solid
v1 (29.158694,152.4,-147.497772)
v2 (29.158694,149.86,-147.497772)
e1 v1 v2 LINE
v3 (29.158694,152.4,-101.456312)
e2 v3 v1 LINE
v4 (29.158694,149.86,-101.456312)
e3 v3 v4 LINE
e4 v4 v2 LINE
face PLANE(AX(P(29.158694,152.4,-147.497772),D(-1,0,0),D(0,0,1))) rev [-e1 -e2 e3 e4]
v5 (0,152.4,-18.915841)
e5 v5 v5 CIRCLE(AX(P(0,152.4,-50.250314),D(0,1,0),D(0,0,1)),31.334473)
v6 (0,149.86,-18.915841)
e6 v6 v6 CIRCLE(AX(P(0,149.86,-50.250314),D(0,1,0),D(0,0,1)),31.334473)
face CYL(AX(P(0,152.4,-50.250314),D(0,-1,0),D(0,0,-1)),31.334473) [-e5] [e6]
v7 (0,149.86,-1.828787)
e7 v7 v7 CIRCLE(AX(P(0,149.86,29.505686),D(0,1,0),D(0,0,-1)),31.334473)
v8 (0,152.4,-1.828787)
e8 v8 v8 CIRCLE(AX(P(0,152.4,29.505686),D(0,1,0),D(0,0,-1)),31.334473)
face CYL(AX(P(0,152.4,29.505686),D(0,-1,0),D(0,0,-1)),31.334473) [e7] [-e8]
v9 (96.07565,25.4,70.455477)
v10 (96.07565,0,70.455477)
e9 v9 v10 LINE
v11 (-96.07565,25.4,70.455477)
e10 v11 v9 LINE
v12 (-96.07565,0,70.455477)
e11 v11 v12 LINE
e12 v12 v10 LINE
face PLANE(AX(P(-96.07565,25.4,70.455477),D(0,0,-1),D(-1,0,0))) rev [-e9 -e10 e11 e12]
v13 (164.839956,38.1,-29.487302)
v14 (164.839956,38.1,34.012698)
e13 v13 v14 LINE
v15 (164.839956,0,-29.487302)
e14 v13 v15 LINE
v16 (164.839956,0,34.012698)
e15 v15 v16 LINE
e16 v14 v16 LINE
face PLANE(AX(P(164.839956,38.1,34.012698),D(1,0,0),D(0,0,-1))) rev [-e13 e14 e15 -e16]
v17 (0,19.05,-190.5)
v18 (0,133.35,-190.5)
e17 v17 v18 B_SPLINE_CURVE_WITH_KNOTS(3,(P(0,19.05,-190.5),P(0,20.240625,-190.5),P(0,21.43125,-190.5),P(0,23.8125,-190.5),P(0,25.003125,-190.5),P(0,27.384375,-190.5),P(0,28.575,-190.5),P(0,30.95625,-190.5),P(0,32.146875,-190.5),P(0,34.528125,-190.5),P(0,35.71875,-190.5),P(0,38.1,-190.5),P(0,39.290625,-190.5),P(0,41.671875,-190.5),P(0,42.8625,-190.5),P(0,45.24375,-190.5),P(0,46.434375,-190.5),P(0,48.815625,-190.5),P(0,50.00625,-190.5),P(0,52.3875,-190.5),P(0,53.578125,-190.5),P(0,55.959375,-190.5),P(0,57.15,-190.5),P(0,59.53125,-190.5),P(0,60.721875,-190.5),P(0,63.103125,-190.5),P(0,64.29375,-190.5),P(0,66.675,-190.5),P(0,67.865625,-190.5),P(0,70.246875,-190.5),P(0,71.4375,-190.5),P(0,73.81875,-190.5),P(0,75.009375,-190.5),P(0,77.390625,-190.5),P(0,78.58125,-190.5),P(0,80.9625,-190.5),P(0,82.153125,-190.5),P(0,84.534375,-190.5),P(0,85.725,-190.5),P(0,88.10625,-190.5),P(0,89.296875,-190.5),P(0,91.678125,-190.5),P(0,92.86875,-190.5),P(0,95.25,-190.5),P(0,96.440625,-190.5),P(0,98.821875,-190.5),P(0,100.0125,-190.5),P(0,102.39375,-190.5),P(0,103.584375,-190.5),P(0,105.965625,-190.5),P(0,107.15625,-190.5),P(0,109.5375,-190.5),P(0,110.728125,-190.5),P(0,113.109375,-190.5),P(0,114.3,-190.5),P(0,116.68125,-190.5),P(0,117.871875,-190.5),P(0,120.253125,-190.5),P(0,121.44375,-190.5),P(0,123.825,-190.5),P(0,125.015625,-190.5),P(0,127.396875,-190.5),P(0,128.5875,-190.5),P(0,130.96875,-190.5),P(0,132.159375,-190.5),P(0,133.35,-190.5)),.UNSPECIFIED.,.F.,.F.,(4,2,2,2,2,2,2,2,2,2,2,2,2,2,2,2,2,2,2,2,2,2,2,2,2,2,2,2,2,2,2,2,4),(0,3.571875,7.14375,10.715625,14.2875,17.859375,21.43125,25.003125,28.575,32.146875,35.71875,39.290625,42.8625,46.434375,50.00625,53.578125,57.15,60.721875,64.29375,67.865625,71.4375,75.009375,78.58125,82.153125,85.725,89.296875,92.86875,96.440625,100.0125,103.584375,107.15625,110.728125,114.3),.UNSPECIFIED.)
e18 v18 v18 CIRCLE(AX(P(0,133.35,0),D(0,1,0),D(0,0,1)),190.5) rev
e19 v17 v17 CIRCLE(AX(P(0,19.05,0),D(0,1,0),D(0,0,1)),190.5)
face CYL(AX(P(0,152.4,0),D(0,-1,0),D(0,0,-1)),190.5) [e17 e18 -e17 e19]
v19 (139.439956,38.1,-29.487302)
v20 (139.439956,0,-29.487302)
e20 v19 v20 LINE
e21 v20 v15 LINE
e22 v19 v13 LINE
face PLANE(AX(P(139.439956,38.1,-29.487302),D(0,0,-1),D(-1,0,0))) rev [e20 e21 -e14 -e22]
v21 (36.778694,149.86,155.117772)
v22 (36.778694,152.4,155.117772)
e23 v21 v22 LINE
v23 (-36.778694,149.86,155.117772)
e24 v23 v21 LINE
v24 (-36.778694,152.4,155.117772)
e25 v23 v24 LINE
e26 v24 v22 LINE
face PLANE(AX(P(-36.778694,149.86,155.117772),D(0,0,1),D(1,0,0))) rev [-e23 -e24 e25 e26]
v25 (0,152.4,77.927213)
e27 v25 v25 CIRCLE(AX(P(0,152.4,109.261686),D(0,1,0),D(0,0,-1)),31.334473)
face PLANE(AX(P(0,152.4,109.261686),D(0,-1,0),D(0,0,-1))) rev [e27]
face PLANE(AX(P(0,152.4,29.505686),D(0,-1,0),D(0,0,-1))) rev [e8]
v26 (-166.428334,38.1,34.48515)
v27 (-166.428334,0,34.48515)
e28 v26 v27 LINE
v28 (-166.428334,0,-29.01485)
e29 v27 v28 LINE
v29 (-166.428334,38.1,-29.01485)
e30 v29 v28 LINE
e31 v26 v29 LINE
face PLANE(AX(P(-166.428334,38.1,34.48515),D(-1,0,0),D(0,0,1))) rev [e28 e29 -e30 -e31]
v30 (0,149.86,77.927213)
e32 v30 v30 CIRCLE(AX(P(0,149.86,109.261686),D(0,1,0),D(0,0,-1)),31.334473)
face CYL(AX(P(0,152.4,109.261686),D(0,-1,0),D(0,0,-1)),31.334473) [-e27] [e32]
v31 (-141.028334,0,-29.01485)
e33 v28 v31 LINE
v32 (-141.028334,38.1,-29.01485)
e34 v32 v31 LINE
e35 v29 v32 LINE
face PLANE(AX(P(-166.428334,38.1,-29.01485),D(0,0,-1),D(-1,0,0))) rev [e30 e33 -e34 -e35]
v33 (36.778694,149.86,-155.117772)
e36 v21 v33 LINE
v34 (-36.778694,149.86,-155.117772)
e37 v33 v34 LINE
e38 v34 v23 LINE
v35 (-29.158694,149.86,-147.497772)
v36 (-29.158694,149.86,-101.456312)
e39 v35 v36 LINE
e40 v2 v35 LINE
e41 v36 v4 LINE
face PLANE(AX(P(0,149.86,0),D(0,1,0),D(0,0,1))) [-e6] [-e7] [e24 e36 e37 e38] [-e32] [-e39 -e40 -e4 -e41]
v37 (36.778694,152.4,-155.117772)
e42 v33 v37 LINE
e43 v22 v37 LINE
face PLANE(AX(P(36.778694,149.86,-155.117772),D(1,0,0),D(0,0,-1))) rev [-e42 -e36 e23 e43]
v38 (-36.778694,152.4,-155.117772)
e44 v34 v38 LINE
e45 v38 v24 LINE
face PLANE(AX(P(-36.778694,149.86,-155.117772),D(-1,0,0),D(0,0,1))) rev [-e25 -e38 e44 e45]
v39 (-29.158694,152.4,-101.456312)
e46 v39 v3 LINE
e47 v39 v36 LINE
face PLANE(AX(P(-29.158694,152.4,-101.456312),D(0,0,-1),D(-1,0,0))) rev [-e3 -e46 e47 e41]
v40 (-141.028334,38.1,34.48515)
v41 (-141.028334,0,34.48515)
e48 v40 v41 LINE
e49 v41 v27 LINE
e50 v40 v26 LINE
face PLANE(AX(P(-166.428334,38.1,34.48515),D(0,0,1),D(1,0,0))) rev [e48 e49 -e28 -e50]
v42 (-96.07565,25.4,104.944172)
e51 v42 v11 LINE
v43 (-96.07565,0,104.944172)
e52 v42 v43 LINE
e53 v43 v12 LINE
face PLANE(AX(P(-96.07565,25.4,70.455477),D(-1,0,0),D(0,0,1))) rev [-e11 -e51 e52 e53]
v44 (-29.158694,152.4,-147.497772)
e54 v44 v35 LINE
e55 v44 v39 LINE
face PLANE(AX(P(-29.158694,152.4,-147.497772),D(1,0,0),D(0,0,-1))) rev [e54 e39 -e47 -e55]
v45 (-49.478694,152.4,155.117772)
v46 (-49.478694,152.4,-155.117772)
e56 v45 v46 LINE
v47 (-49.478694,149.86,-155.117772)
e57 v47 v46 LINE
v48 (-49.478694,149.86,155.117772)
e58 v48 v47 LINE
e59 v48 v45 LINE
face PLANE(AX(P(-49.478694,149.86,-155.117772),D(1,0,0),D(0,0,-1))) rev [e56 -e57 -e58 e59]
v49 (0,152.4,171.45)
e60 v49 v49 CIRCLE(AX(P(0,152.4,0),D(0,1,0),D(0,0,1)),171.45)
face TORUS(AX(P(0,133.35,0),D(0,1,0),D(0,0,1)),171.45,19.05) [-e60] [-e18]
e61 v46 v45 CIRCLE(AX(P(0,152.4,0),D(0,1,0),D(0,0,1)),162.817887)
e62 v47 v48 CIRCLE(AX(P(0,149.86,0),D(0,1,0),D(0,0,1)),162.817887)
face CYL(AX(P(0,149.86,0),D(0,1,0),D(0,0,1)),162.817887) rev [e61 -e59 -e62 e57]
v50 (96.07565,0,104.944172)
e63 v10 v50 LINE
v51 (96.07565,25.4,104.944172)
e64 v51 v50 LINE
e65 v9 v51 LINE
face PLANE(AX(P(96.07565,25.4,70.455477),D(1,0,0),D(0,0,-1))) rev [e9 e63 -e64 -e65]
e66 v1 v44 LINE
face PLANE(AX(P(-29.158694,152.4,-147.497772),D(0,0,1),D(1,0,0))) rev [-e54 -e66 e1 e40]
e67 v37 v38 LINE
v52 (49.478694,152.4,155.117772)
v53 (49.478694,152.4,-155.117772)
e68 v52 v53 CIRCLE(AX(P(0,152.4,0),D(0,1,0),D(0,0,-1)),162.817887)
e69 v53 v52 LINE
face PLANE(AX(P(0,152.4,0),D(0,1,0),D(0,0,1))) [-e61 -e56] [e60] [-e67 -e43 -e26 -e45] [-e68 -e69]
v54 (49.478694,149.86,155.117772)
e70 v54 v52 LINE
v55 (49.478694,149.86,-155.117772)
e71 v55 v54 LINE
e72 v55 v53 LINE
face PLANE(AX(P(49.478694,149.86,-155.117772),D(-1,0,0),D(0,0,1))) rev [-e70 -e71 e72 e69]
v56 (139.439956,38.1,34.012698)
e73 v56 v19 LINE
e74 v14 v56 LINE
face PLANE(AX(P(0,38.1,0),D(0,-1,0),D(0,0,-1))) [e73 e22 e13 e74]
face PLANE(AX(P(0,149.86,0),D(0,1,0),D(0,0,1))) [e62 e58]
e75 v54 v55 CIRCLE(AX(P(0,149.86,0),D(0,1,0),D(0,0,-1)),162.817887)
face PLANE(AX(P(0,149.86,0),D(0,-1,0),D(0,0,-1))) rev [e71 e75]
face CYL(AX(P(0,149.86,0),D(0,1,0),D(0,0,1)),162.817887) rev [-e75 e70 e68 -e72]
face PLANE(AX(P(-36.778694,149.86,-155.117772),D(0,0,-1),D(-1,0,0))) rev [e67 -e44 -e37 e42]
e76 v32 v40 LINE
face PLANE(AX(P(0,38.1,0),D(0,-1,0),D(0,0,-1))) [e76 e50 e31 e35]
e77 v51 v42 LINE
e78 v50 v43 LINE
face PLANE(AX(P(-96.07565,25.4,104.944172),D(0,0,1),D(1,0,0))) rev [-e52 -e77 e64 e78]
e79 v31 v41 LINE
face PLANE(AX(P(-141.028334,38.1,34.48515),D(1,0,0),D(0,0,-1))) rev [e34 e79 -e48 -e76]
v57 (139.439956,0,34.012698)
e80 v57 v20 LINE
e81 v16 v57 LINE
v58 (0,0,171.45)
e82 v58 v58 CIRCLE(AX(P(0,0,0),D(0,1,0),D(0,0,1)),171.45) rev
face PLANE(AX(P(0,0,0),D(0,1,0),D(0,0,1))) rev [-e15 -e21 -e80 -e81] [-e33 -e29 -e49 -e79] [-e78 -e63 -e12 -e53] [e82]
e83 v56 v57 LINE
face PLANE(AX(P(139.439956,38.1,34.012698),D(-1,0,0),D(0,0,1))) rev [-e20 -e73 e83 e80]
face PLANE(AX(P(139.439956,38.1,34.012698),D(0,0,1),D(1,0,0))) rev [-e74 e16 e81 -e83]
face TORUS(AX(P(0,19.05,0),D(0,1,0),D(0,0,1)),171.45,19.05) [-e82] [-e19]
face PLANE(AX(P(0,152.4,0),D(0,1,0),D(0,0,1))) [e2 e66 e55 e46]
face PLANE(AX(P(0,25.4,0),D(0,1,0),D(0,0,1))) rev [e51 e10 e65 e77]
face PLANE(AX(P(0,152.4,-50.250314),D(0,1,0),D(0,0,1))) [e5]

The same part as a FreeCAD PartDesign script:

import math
import FreeCAD as App
import Part
import Sketcher
Q = App.Units.Quantity


def edges_at(feature, points):
    """Names of the edges that pass closest to the given points."""
    edges = feature.Shape.Edges
    near = lambda p: min(range(len(edges)), key=lambda i: edges[i].distToShape(Part.Vertex(*p))[0])
    return sorted({f"Edge{near(p) + 1}" for p in points})

doc = App.newDocument("Part")
body = doc.addObject("PartDesign::Body", "Body")

# Sketch on XZ plane
sketch1 = body.newObject("Sketcher::SketchObject", "Sketch")
sketch1.AttachmentSupport = (doc.getObject("XZ_Plane"), [""])
sketch1.MapMode = "FlatFace"
sketch1.addGeometry(Part.Circle(App.Vector(0, 0, 0), App.Vector(0, 0, 1), 190), False)
sketch1.addConstraint(Sketcher.Constraint("Coincident", 0, 3, -1, 1))
sketch1.addConstraint(Sketcher.Constraint("Diameter", 0, Q("15 in")))
pad1 = body.newObject("PartDesign::Pad", "Pad")
pad1.Profile = sketch1
pad1.Length = Q("6 in")
pad1.Reversed = True

# Sketch on XZ plane
sketch2 = body.newObject("Sketcher::SketchObject", "Sketch001")
sketch2.AttachmentSupport = (doc.getObject("XZ_Plane"), [""])
sketch2.MapMode = "FlatFace"
sketch2.AttachmentOffset = App.Placement(App.Vector(0, 0, -6 * 25.4), App.Rotation())
sketch2.addGeometry(Part.LineSegment(App.Vector(-49, 155, 0), App.Vector(-49, -155, 0)), False)
sketch2.addGeometry(Part.ArcOfCircle(Part.Circle(App.Vector(0, 0, 0), App.Vector(0, 0, 1), 163), math.radians(108), math.radians(252)), False)
sketch2.addGeometry(Part.LineSegment(App.Vector(49, -155, 0), App.Vector(49, 155, 0)), False)
sketch2.addGeometry(Part.ArcOfCircle(Part.Circle(App.Vector(0, 0, 0), App.Vector(0, 0, 1), 163), math.radians(-72), math.radians(72)), False)
sketch2.addGeometry(Part.LineSegment(App.Vector(-37, -155, 0), App.Vector(-37, 155, 0)), False)
sketch2.addGeometry(Part.LineSegment(App.Vector(-37, 155, 0), App.Vector(37, 155, 0)), False)
sketch2.addGeometry(Part.LineSegment(App.Vector(37, 155, 0), App.Vector(37, -155, 0)), False)
sketch2.addGeometry(Part.LineSegment(App.Vector(37, -155, 0), App.Vector(-37, -155, 0)), False)
sketch2.addConstraint(Sketcher.Constraint("Coincident", 0, 1, 1, 1))
sketch2.addConstraint(Sketcher.Constraint("Coincident", 1, 2, 0, 2))
sketch2.addConstraint(Sketcher.Constraint("Coincident", 2, 1, 3, 1))
sketch2.addConstraint(Sketcher.Constraint("Coincident", 3, 2, 2, 2))
sketch2.addConstraint(Sketcher.Constraint("Coincident", 4, 2, 5, 1))
sketch2.addConstraint(Sketcher.Constraint("Coincident", 5, 2, 6, 1))
sketch2.addConstraint(Sketcher.Constraint("Coincident", 6, 2, 7, 1))
sketch2.addConstraint(Sketcher.Constraint("Coincident", 7, 2, 4, 1))
sketch2.addConstraint(Sketcher.Constraint("Vertical", 0))
sketch2.addConstraint(Sketcher.Constraint("Vertical", 2))
sketch2.addConstraint(Sketcher.Constraint("Vertical", 4))
sketch2.addConstraint(Sketcher.Constraint("Horizontal", 5))
sketch2.addConstraint(Sketcher.Constraint("Vertical", 6))
sketch2.addConstraint(Sketcher.Constraint("Horizontal", 7))
sketch2.addConstraint(Sketcher.Constraint("Coincident", 1, 3, -1, 1))
sketch2.addConstraint(Sketcher.Constraint("Coincident", 3, 3, -1, 1))
sketch2.addConstraint(Sketcher.Constraint("Equal", 1, 3))
sketch2.addConstraint(Sketcher.Constraint("Symmetric", 4, 2, 6, 2, -1, 1))
sketch2.addConstraint(Sketcher.Constraint("Horizontal", 1, 2, 2, 1))
sketch2.addConstraint(Sketcher.Constraint("Horizontal", 3, 2, 4, 2))
sketch2.addConstraint(Sketcher.Constraint("DistanceX", 0, 1, 4, 2, Q("0.5 in")))
sketch2.addConstraint(Sketcher.Constraint("Radius", 1, Q("162.817887 mm")))
sketch2.addConstraint(Sketcher.Constraint("DistanceX", 5, 1, 5, 2, Q("73.557388 mm")))
pocket1 = body.newObject("PartDesign::Pocket", "Pocket")
pocket1.Profile = sketch2
pocket1.Length = Q("0.1 in")
pocket1.Reversed = True

# Sketch on XZ plane
sketch3 = body.newObject("Sketcher::SketchObject", "Sketch002")
sketch3.AttachmentSupport = (doc.getObject("XZ_Plane"), [""])
sketch3.MapMode = "FlatFace"
sketch3.AttachmentOffset = App.Placement(App.Vector(0, 0, -5.9 * 25.4), App.Rotation())
sketch3.addGeometry(Part.Circle(App.Vector(0, -50, 0), App.Vector(0, 0, 1), 31), False)
sketch3.addGeometry(Part.Circle(App.Vector(0, 30, 0), App.Vector(0, 0, 1), 31), False)
sketch3.addGeometry(Part.Circle(App.Vector(0, 109, 0), App.Vector(0, 0, 1), 31), False)
sketch3.addGeometry(Part.LineSegment(App.Vector(-29, -147, 0), App.Vector(-29, -101, 0)), False)
sketch3.addGeometry(Part.LineSegment(App.Vector(-29, -101, 0), App.Vector(29, -101, 0)), False)
sketch3.addGeometry(Part.LineSegment(App.Vector(29, -101, 0), App.Vector(29, -147, 0)), False)
sketch3.addGeometry(Part.LineSegment(App.Vector(29, -147, 0), App.Vector(-29, -147, 0)), False)
sketch3.addConstraint(Sketcher.Constraint("Coincident", 3, 2, 4, 1))
sketch3.addConstraint(Sketcher.Constraint("Coincident", 4, 2, 5, 1))
sketch3.addConstraint(Sketcher.Constraint("Coincident", 5, 2, 6, 1))
sketch3.addConstraint(Sketcher.Constraint("Coincident", 6, 2, 3, 1))
sketch3.addConstraint(Sketcher.Constraint("Vertical", 3))
sketch3.addConstraint(Sketcher.Constraint("Horizontal", 4))
sketch3.addConstraint(Sketcher.Constraint("Vertical", 5))
sketch3.addConstraint(Sketcher.Constraint("Horizontal", 6))
sketch3.addConstraint(Sketcher.Constraint("Equal", 0, 1))
sketch3.addConstraint(Sketcher.Constraint("Equal", 1, 2))
sketch3.addConstraint(Sketcher.Constraint("PointOnObject", 0, 3, -2))
sketch3.addConstraint(Sketcher.Constraint("PointOnObject", 1, 3, -2))
sketch3.addConstraint(Sketcher.Constraint("PointOnObject", 2, 3, -2))
sketch3.addConstraint(Sketcher.Constraint("DistanceY", 0, 3, 1, 3, Q("3.14 in")))
sketch3.addConstraint(Sketcher.Constraint("DistanceY", 1, 3, 2, 3, Q("3.14 in")))
sketch3.addConstraint(Sketcher.Constraint("Diameter", 0, Q("62.668946 mm")))
sketch3.addConstraint(Sketcher.Constraint("DistanceY", 3, 1, 3, 2, Q("46.04146 mm")))
sketch3.addConstraint(Sketcher.Constraint("DistanceY", 3, 2, 0, 3, Q("51.205998 mm")))
sketch3.addConstraint(Sketcher.Constraint("DistanceX", 4, 1, 4, 2, Q("58.317388 mm")))
sketch3.addConstraint(Sketcher.Constraint("DistanceY", 3, 2, -1, 1, Q("101.456312 mm")))
sketch3.addConstraint(Sketcher.Constraint("DistanceX", 3, 2, -1, 1, Q("29.158694 mm")))
pad2 = body.newObject("PartDesign::Pad", "Pad001")
pad2.Profile = sketch3
pad2.Length = Q("0.1 in")
pad2.Reversed = True

# Sketch on XZ plane
sketch4 = body.newObject("Sketcher::SketchObject", "Sketch003")
sketch4.AttachmentSupport = (doc.getObject("XZ_Plane"), [""])
sketch4.MapMode = "FlatFace"
sketch4.addGeometry(Part.LineSegment(App.Vector(-166, 34, 0), App.Vector(-166, -29, 0)), False)
sketch4.addGeometry(Part.LineSegment(App.Vector(-166, -29, 0), App.Vector(-141, -29, 0)), False)
sketch4.addGeometry(Part.LineSegment(App.Vector(-141, -29, 0), App.Vector(-141, 34, 0)), False)
sketch4.addGeometry(Part.LineSegment(App.Vector(-141, 34, 0), App.Vector(-166, 34, 0)), False)
sketch4.addGeometry(Part.LineSegment(App.Vector(139, 34, 0), App.Vector(139, -29, 0)), False)
sketch4.addGeometry(Part.LineSegment(App.Vector(139, -29, 0), App.Vector(165, -29, 0)), False)
sketch4.addGeometry(Part.LineSegment(App.Vector(165, -29, 0), App.Vector(165, 34, 0)), False)
sketch4.addGeometry(Part.LineSegment(App.Vector(165, 34, 0), App.Vector(139, 34, 0)), False)
sketch4.addConstraint(Sketcher.Constraint("Coincident", 0, 2, 1, 1))
sketch4.addConstraint(Sketcher.Constraint("Coincident", 1, 2, 2, 1))
sketch4.addConstraint(Sketcher.Constraint("Coincident", 2, 2, 3, 1))
sketch4.addConstraint(Sketcher.Constraint("Coincident", 3, 2, 0, 1))
sketch4.addConstraint(Sketcher.Constraint("Coincident", 4, 2, 5, 1))
sketch4.addConstraint(Sketcher.Constraint("Coincident", 5, 2, 6, 1))
sketch4.addConstraint(Sketcher.Constraint("Coincident", 6, 2, 7, 1))
sketch4.addConstraint(Sketcher.Constraint("Coincident", 7, 2, 4, 1))
sketch4.addConstraint(Sketcher.Constraint("Vertical", 0))
sketch4.addConstraint(Sketcher.Constraint("Horizontal", 1))
sketch4.addConstraint(Sketcher.Constraint("Vertical", 2))
sketch4.addConstraint(Sketcher.Constraint("Horizontal", 3))
sketch4.addConstraint(Sketcher.Constraint("Vertical", 4))
sketch4.addConstraint(Sketcher.Constraint("Horizontal", 5))
sketch4.addConstraint(Sketcher.Constraint("Vertical", 6))
sketch4.addConstraint(Sketcher.Constraint("Horizontal", 7))
sketch4.addConstraint(Sketcher.Constraint("Equal", 3, 5))
sketch4.addConstraint(Sketcher.Constraint("Equal", 2, 4))
sketch4.addConstraint(Sketcher.Constraint("DistanceX", 1, 1, 1, 2, Q("1 in")))
sketch4.addConstraint(Sketcher.Constraint("DistanceY", 0, 2, 0, 1, Q("2.5 in")))
sketch4.addConstraint(Sketcher.Constraint("DistanceY", 0, 2, -1, 1, Q("29.01485 mm")))
sketch4.addConstraint(Sketcher.Constraint("DistanceX", 1, 2, 4, 2, Q("280.46829 mm")))
sketch4.addConstraint(Sketcher.Constraint("DistanceX", 0, 2, -1, 1, Q("166.428334 mm")))
sketch4.addConstraint(Sketcher.Constraint("DistanceY", 4, 2, -1, 1, Q("29.487302 mm")))
pocket2 = body.newObject("PartDesign::Pocket", "Pocket001")
pocket2.Profile = sketch4
pocket2.Length = Q("1.5 in")
doc.recompute()

fillet = body.newObject("PartDesign::Fillet", "Fillet")
fillet.Base = (pocket2, edges_at(pocket2, [(0, 0, 190.5), (0, 152.4, 190.5)]))
fillet.Radius = Q("0.75 in")

# Sketch on XZ plane
sketch5 = body.newObject("Sketcher::SketchObject", "Sketch004")
sketch5.AttachmentSupport = (doc.getObject("XZ_Plane"), [""])
sketch5.MapMode = "FlatFace"
sketch5.addGeometry(Part.LineSegment(App.Vector(-96, 105, 0), App.Vector(-96, 70, 0)), False)
sketch5.addGeometry(Part.LineSegment(App.Vector(-96, 70, 0), App.Vector(96, 70, 0)), False)
sketch5.addGeometry(Part.LineSegment(App.Vector(96, 70, 0), App.Vector(96, 105, 0)), False)
sketch5.addGeometry(Part.LineSegment(App.Vector(96, 105, 0), App.Vector(-96, 105, 0)), False)
sketch5.addConstraint(Sketcher.Constraint("Coincident", 0, 2, 1, 1))
sketch5.addConstraint(Sketcher.Constraint("Coincident", 1, 2, 2, 1))
sketch5.addConstraint(Sketcher.Constraint("Coincident", 2, 2, 3, 1))
sketch5.addConstraint(Sketcher.Constraint("Coincident", 3, 2, 0, 1))
sketch5.addConstraint(Sketcher.Constraint("Vertical", 0))
sketch5.addConstraint(Sketcher.Constraint("Horizontal", 1))
sketch5.addConstraint(Sketcher.Constraint("Vertical", 2))
sketch5.addConstraint(Sketcher.Constraint("Horizontal", 3))
sketch5.addConstraint(Sketcher.Constraint("DistanceX", 1, 1, 1, 2, Q("192.1513 mm")))
sketch5.addConstraint(Sketcher.Constraint("DistanceY", 0, 2, 0, 1, Q("34.488695 mm")))
sketch5.addConstraint(Sketcher.Constraint("DistanceX", 0, 2, -1, 1, Q("96.07565 mm")))
sketch5.addConstraint(Sketcher.Constraint("DistanceY", -1, 1, 2, 2, Q("104.944172 mm")))
pocket3 = body.newObject("PartDesign::Pocket", "Pocket002")
pocket3.Profile = sketch5
pocket3.Length = Q("1 in")

doc.recompute()
